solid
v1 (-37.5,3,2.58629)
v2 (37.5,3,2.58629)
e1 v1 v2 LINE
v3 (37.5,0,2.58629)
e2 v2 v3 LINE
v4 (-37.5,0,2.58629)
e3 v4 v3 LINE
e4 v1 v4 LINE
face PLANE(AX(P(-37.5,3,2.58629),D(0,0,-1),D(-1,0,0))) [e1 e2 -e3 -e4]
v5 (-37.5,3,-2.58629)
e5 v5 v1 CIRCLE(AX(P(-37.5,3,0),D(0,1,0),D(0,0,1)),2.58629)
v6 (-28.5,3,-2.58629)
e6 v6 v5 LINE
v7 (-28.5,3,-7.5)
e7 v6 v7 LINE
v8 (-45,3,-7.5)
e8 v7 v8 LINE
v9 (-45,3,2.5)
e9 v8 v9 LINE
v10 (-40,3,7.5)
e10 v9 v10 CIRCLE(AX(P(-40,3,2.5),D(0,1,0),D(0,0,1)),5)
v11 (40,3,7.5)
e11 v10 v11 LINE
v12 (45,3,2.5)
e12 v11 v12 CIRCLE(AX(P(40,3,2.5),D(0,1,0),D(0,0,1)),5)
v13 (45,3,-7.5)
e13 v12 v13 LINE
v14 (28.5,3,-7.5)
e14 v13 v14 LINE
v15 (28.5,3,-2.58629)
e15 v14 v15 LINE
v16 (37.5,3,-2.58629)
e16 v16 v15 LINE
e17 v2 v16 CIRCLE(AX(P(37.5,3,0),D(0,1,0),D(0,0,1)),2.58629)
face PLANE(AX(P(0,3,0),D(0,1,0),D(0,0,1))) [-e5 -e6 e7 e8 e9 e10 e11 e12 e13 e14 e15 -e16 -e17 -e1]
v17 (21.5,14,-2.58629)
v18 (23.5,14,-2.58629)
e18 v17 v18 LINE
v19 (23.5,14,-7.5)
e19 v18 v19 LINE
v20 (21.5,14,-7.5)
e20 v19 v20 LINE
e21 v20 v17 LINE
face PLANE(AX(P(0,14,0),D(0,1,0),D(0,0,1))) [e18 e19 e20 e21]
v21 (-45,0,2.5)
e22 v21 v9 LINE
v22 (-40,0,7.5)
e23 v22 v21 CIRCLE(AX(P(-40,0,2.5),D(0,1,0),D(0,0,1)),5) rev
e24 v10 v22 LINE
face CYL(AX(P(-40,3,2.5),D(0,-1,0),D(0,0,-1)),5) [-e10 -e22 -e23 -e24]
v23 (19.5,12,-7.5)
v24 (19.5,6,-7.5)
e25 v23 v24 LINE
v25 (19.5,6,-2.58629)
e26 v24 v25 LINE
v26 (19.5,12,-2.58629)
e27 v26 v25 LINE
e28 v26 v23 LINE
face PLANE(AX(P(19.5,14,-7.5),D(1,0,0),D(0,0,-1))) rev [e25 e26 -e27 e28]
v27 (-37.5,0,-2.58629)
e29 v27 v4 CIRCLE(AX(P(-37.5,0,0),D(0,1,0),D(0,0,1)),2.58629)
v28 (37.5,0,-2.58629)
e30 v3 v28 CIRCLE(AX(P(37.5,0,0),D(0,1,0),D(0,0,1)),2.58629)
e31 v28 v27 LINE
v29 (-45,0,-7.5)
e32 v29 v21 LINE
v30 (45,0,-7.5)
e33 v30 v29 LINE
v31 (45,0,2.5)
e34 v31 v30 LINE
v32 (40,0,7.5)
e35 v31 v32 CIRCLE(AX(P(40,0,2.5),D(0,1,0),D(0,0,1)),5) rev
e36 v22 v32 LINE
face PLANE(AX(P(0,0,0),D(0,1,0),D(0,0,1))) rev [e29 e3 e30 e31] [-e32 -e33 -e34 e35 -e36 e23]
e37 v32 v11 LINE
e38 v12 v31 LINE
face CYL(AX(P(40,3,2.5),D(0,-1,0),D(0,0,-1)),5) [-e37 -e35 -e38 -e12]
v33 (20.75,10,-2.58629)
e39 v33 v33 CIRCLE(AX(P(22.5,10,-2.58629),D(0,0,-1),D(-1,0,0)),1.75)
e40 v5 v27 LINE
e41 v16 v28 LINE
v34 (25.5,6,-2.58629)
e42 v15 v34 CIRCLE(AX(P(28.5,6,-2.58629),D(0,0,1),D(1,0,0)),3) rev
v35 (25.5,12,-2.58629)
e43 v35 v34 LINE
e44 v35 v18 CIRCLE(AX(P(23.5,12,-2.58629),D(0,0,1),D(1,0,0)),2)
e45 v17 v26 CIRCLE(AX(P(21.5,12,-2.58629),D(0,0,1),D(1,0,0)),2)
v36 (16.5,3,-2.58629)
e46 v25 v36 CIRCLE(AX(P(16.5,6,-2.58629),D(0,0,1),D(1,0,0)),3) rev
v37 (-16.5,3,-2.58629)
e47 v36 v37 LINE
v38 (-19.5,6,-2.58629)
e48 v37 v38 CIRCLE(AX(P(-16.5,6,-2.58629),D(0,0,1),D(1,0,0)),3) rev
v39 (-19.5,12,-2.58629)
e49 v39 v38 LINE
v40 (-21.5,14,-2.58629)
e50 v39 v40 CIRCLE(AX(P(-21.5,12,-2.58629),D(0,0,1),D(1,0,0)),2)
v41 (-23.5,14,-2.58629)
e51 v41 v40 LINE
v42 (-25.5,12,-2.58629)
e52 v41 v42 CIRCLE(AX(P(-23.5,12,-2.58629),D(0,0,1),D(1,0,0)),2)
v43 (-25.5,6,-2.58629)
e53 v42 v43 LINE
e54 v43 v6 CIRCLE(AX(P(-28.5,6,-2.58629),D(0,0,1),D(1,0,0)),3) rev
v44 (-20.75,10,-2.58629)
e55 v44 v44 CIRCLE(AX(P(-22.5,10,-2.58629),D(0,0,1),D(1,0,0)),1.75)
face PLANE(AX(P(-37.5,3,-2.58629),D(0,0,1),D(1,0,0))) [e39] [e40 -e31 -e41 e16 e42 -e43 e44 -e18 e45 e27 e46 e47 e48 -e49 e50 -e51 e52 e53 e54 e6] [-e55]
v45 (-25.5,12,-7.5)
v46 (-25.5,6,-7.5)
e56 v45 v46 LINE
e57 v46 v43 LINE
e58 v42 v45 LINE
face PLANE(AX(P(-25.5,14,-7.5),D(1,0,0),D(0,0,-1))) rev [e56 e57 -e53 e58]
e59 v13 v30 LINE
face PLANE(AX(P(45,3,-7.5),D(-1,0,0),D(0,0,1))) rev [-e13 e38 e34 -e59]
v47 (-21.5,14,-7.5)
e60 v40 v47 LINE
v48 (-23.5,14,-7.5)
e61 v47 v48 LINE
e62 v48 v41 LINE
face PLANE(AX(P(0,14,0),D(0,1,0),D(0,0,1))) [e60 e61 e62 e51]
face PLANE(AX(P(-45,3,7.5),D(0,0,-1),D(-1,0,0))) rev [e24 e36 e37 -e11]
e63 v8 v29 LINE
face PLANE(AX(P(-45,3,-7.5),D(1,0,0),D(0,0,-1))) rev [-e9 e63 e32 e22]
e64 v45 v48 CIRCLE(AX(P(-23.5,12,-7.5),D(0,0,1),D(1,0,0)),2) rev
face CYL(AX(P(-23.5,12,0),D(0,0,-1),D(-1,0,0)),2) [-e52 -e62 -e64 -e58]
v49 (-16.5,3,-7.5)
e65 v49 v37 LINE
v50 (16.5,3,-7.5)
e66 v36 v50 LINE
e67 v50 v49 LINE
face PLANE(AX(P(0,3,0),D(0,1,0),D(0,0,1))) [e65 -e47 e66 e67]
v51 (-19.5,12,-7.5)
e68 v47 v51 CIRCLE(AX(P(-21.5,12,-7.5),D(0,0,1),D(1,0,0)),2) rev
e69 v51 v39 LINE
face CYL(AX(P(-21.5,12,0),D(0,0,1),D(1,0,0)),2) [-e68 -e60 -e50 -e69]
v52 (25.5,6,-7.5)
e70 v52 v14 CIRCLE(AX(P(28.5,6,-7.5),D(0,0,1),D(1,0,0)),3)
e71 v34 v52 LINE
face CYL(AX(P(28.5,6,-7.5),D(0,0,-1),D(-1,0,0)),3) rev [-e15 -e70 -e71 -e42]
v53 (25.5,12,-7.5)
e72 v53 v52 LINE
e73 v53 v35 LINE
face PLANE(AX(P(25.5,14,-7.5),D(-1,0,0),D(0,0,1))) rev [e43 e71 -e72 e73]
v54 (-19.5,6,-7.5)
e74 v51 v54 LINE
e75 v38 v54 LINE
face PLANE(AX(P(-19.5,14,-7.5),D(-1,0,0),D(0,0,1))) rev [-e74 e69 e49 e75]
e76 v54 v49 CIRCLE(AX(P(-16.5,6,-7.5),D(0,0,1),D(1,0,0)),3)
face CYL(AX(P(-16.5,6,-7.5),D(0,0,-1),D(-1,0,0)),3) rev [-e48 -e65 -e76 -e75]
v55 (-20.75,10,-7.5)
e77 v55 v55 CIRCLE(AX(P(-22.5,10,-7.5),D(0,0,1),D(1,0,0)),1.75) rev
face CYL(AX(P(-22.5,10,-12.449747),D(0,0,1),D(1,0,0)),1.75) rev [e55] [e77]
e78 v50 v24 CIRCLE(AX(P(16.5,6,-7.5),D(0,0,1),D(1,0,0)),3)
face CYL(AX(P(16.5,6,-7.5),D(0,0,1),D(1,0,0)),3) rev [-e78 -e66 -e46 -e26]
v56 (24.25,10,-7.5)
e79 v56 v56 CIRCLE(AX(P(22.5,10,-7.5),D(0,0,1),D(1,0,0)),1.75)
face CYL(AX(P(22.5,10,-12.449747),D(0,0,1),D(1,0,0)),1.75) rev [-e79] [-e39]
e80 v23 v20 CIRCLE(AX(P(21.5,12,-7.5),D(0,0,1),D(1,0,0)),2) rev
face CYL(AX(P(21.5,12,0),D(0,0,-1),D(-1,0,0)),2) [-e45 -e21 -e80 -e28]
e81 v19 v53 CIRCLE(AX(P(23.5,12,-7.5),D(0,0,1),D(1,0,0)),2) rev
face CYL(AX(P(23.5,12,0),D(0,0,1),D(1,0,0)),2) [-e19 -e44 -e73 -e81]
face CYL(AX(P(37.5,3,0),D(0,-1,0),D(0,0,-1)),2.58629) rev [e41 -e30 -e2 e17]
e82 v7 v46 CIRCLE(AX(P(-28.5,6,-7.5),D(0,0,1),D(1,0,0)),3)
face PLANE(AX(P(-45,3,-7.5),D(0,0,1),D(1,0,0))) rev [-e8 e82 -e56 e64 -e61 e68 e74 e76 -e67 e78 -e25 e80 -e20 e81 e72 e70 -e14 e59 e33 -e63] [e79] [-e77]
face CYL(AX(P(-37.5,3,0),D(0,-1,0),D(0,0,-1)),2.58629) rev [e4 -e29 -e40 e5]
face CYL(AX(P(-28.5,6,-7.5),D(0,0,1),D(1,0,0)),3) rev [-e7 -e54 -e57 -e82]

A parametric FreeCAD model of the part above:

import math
import FreeCAD as App
import Part
import Sketcher
Q = App.Units.Quantity


def edges_at(feature, points):
    """Names of the edges that pass closest to the given points."""
    edges = feature.Shape.Edges
    near = lambda p: min(range(len(edges)), key=lambda i: edges[i].distToShape(Part.Vertex(*p))[0])
    return sorted({f"Edge{near(p) + 1}" for p in points})

doc = App.newDocument("Part")
params = doc.addObject("Spreadsheet::Sheet", "Params")
for row, (alias, value) in enumerate([
    ("sketch1_width", "90 mm"),
    ("sketch1_width2", "75 mm"),
    ("sketch1_height", "15 mm"),
    ("pad1_length", "3 mm"),
    ("fillet_radius", "5 mm"),
    ("sketch2_width", "6 mm"),
    ("pad2_length", "11 mm"),
    ("sketch3_diameter", "3.5 mm"),
    ("pocket1_length", "4.91371 mm"),
    ("fillet2_radius", "2 mm"),
    ("fillet3_radius", "3 mm"),
], start=1):
    params.set(f"A{row}", alias)
    params.set(f"B{row}", "=" + value)
    params.setAlias(f"B{row}", alias)

body = doc.addObject("PartDesign::Body", "Body")

# Sketch on XZ plane
sketch1 = doc.addObject("Sketcher::SketchObject", "Sketch")
body.addObject(sketch1)
sketch1.AttachmentSupport = (doc.XZ_Plane, [""])
sketch1.MapMode = "FlatFace"
sketch1.addGeometry([
    Part.LineSegment(App.Vector(-45, -7.5, 0), App.Vector(-45, 7.5, 0)),  # 0
    Part.LineSegment(App.Vector(-45, 7.5, 0), App.Vector(45, 7.5, 0)),  # 1
    Part.LineSegment(App.Vector(45, 7.5, 0), App.Vector(45, -7.5, 0)),  # 2
    Part.LineSegment(App.Vector(45, -7.5, 0), App.Vector(-45, -7.5, 0)),  # 3
    Part.ArcOfCircle(Part.Circle(App.Vector(-37.5, 0, 0), App.Vector(0, 0, 1), 2.6), math.radians(90), math.radians(270)),  # 4
    Part.LineSegment(App.Vector(-37.5, -2.6, 0), App.Vector(37.5, -2.6, 0)),  # 5
    Part.ArcOfCircle(Part.Circle(App.Vector(37.5, 0, 0), App.Vector(0, 0, 1), 2.6), math.radians(-90), math.radians(90)),  # 6
    Part.LineSegment(App.Vector(37.5, 2.6, 0), App.Vector(-37.5, 2.6, 0)),  # 7
], False)
sketch1.addConstraint([
    Sketcher.Constraint("Coincident", 0, 2, 1, 1),
    Sketcher.Constraint("Coincident", 1, 2, 2, 1),
    Sketcher.Constraint("Coincident", 2, 2, 3, 1),
    Sketcher.Constraint("Coincident", 3, 2, 0, 1),
    Sketcher.Constraint("Tangent", 4, 2, 5, 1),
    Sketcher.Constraint("Tangent", 5, 2, 6, 1),
    Sketcher.Constraint("Tangent", 6, 2, 7, 1),
    Sketcher.Constraint("Tangent", 7, 2, 4, 1),
    Sketcher.Constraint("Vertical", 0),
    Sketcher.Constraint("Horizontal", 1),
    Sketcher.Constraint("Vertical", 2),
    Sketcher.Constraint("Horizontal", 3),
    Sketcher.Constraint("Horizontal", 5),
    Sketcher.Constraint("Horizontal", 7),
    Sketcher.Constraint("Symmetric", 4, 3, 6, 3, -1, 1),
    Sketcher.Constraint("Symmetric", 0, 2, 2, 2, -1, 1),
    Sketcher.Constraint("DistanceX", 1, 1, 1, 2, Q("90 mm")),
    Sketcher.Constraint("DistanceX", 5, 1, 5, 2, Q("75 mm")),
    Sketcher.Constraint("DistanceY", 0, 1, 0, 2, Q("15 mm")),
    Sketcher.Constraint("Radius", 4, Q("2.58629 mm")),
])
sketch1.setExpression("Constraints[16]", "Params.sketch1_width")
sketch1.setExpression("Constraints[17]", "Params.sketch1_width2")
sketch1.setExpression("Constraints[18]", "Params.sketch1_height")
pad1 = doc.addObject("PartDesign::Pad", "Pad")
body.addObject(pad1)
pad1.Profile = sketch1
pad1.setExpression("Length", "Params.pad1_length")
pad1.Reversed = True
doc.recompute()

fillet = doc.addObject("PartDesign::Fillet", "Fillet")
body.addObject(fillet)
fillet.Base = (pad1, edges_at(pad1, [(45, 1.5, 7.5), (-45, 1.5, 7.5)]))
fillet.setExpression("Radius", "Params.fillet_radius")

# Sketch on XZ plane
sketch2 = doc.addObject("Sketcher::SketchObject", "Sketch001")
body.addObject(sketch2)
sketch2.AttachmentSupport = (doc.XZ_Plane, [""])
sketch2.MapMode = "FlatFace"
sketch2.AttachmentOffset = App.Placement(App.Vector(0, 0, -3), App.Rotation())
sketch2.addGeometry([
    Part.LineSegment(App.Vector(-25.5, -7.5, 0), App.Vector(-25.5, -2.6, 0)),  # 0
    Part.LineSegment(App.Vector(-25.5, -2.6, 0), App.Vector(-19.5, -2.6, 0)),  # 1
    Part.LineSegment(App.Vector(-19.5, -2.6, 0), App.Vector(-19.5, -7.5, 0)),  # 2
    Part.LineSegment(App.Vector(-19.5, -7.5, 0), App.Vector(-25.5, -7.5, 0)),  # 3
    Part.LineSegment(App.Vector(19.5, -7.5, 0), App.Vector(19.5, -2.6, 0)),  # 4
    Part.LineSegment(App.Vector(19.5, -2.6, 0), App.Vector(25.5, -2.6, 0)),  # 5
    Part.LineSegment(App.Vector(25.5, -2.6, 0), App.Vector(25.5, -7.5, 0)),  # 6
    Part.LineSegment(App.Vector(25.5, -7.5, 0), App.Vector(19.5, -7.5, 0)),  # 7
], False)
sketch2.addConstraint([
    Sketcher.Constraint("Coincident", 0, 2, 1, 1),
    Sketcher.Constraint("Coincident", 1, 2, 2, 1),
    Sketcher.Constraint("Coincident", 2, 2, 3, 1),
    Sketcher.Constraint("Coincident", 3, 2, 0, 1),
    Sketcher.Constraint("Coincident", 4, 2, 5, 1),
    Sketcher.Constraint("Coincident", 5, 2, 6, 1),
    Sketcher.Constraint("Coincident", 6, 2, 7, 1),
    Sketcher.Constraint("Coincident", 7, 2, 4, 1),
    Sketcher.Constraint("Vertical", 0),
    Sketcher.Constraint("Horizontal", 1),
    Sketcher.Constraint("Vertical", 2),
    Sketcher.Constraint("Horizontal", 3),
    Sketcher.Constraint("Vertical", 4),
    Sketcher.Constraint("Horizontal", 5),
    Sketcher.Constraint("Vertical", 6),
    Sketcher.Constraint("Horizontal", 7),
    Sketcher.Constraint("Symmetric", 1, 2, 4, 2, -2),
    Sketcher.Constraint("Symmetric", 3, 2, 6, 2, -2),
    Sketcher.Constraint("DistanceX", 1, 1, 1, 2, Q("6 mm")),
    Sketcher.Constraint("DistanceX", 1, 2, 4, 2, Q("39 mm")),
    Sketcher.Constraint("DistanceY", 2, 2, -1, 1, Q("7.5 mm")),
    Sketcher.Constraint("DistanceY", 0, 1, 0, 2, Q("4.91371 mm")),
])
sketch2.setExpression("Constraints[18]", "Params.sketch2_width")
pad2 = doc.addObject("PartDesign::Pad", "Pad001")
body.addObject(pad2)
pad2.Profile = sketch2
pad2.setExpression("Length", "Params.pad2_length")
pad2.Reversed = True

# Sketch on XY plane
sketch3 = doc.addObject("Sketcher::SketchObject", "Sketch002")
body.addObject(sketch3)
sketch3.AttachmentSupport = (doc.XY_Plane, [""])
sketch3.MapMode = "FlatFace"
sketch3.AttachmentOffset = App.Placement(App.Vector(0, 0, -2.58629), App.Rotation())
sketch3.addGeometry(Part.Circle(App.Vector(-22.5, 10, 0), App.Vector(0, 0, 1), 1.8), False)
sketch3.addConstraint([
    Sketcher.Constraint("Diameter", 0, Q("3.5 mm")),
    Sketcher.Constraint("DistanceY", -1, 1, 0, 3, Q("10 mm")),
    Sketcher.Constraint("DistanceX", 0, 3, -1, 1, Q("22.5 mm")),
])
sketch3.setExpression("Constraints[0]", "Params.sketch3_diameter")
pocket1 = doc.addObject("PartDesign::Pocket", "Pocket")
body.addObject(pocket1)
pocket1.Profile = sketch3
pocket1.setExpression("Length", "Params.pocket1_length")
doc.recompute()

mirrored = doc.addObject("PartDesign::Mirrored", "Mirrored")
body.addObject(mirrored)
mirrored.Originals = [pocket1]
mirrored.MirrorPlane = (doc.YZ_Plane, [""])
body.Tip = mirrored
doc.recompute()

fillet2 = doc.addObject("PartDesign::Fillet", "Fillet001")
body.addObject(fillet2)
fillet2.Base = (mirrored, edges_at(mirrored, [
    (-25.5, 14, -5.043),
    (-19.5, 14, -5.043),
    (19.5, 14, -5.043),
    (25.5, 14, -5.043),
]))
fillet2.setExpression("Radius", "Params.fillet2_radius")
doc.recompute()

fillet3 = doc.addObject("PartDesign::Fillet", "Fillet002")
body.addObject(fillet3)
fillet3.Base = (fillet2, edges_at(fillet2, [
    (-25.5, 3, -5.043),
    (-19.5, 3, -5.043),
    (19.5, 3, -5.043),
    (25.5, 3, -5.043),
]))
fillet3.setExpression("Radius", "Params.fillet3_radius")

doc.recompute()
